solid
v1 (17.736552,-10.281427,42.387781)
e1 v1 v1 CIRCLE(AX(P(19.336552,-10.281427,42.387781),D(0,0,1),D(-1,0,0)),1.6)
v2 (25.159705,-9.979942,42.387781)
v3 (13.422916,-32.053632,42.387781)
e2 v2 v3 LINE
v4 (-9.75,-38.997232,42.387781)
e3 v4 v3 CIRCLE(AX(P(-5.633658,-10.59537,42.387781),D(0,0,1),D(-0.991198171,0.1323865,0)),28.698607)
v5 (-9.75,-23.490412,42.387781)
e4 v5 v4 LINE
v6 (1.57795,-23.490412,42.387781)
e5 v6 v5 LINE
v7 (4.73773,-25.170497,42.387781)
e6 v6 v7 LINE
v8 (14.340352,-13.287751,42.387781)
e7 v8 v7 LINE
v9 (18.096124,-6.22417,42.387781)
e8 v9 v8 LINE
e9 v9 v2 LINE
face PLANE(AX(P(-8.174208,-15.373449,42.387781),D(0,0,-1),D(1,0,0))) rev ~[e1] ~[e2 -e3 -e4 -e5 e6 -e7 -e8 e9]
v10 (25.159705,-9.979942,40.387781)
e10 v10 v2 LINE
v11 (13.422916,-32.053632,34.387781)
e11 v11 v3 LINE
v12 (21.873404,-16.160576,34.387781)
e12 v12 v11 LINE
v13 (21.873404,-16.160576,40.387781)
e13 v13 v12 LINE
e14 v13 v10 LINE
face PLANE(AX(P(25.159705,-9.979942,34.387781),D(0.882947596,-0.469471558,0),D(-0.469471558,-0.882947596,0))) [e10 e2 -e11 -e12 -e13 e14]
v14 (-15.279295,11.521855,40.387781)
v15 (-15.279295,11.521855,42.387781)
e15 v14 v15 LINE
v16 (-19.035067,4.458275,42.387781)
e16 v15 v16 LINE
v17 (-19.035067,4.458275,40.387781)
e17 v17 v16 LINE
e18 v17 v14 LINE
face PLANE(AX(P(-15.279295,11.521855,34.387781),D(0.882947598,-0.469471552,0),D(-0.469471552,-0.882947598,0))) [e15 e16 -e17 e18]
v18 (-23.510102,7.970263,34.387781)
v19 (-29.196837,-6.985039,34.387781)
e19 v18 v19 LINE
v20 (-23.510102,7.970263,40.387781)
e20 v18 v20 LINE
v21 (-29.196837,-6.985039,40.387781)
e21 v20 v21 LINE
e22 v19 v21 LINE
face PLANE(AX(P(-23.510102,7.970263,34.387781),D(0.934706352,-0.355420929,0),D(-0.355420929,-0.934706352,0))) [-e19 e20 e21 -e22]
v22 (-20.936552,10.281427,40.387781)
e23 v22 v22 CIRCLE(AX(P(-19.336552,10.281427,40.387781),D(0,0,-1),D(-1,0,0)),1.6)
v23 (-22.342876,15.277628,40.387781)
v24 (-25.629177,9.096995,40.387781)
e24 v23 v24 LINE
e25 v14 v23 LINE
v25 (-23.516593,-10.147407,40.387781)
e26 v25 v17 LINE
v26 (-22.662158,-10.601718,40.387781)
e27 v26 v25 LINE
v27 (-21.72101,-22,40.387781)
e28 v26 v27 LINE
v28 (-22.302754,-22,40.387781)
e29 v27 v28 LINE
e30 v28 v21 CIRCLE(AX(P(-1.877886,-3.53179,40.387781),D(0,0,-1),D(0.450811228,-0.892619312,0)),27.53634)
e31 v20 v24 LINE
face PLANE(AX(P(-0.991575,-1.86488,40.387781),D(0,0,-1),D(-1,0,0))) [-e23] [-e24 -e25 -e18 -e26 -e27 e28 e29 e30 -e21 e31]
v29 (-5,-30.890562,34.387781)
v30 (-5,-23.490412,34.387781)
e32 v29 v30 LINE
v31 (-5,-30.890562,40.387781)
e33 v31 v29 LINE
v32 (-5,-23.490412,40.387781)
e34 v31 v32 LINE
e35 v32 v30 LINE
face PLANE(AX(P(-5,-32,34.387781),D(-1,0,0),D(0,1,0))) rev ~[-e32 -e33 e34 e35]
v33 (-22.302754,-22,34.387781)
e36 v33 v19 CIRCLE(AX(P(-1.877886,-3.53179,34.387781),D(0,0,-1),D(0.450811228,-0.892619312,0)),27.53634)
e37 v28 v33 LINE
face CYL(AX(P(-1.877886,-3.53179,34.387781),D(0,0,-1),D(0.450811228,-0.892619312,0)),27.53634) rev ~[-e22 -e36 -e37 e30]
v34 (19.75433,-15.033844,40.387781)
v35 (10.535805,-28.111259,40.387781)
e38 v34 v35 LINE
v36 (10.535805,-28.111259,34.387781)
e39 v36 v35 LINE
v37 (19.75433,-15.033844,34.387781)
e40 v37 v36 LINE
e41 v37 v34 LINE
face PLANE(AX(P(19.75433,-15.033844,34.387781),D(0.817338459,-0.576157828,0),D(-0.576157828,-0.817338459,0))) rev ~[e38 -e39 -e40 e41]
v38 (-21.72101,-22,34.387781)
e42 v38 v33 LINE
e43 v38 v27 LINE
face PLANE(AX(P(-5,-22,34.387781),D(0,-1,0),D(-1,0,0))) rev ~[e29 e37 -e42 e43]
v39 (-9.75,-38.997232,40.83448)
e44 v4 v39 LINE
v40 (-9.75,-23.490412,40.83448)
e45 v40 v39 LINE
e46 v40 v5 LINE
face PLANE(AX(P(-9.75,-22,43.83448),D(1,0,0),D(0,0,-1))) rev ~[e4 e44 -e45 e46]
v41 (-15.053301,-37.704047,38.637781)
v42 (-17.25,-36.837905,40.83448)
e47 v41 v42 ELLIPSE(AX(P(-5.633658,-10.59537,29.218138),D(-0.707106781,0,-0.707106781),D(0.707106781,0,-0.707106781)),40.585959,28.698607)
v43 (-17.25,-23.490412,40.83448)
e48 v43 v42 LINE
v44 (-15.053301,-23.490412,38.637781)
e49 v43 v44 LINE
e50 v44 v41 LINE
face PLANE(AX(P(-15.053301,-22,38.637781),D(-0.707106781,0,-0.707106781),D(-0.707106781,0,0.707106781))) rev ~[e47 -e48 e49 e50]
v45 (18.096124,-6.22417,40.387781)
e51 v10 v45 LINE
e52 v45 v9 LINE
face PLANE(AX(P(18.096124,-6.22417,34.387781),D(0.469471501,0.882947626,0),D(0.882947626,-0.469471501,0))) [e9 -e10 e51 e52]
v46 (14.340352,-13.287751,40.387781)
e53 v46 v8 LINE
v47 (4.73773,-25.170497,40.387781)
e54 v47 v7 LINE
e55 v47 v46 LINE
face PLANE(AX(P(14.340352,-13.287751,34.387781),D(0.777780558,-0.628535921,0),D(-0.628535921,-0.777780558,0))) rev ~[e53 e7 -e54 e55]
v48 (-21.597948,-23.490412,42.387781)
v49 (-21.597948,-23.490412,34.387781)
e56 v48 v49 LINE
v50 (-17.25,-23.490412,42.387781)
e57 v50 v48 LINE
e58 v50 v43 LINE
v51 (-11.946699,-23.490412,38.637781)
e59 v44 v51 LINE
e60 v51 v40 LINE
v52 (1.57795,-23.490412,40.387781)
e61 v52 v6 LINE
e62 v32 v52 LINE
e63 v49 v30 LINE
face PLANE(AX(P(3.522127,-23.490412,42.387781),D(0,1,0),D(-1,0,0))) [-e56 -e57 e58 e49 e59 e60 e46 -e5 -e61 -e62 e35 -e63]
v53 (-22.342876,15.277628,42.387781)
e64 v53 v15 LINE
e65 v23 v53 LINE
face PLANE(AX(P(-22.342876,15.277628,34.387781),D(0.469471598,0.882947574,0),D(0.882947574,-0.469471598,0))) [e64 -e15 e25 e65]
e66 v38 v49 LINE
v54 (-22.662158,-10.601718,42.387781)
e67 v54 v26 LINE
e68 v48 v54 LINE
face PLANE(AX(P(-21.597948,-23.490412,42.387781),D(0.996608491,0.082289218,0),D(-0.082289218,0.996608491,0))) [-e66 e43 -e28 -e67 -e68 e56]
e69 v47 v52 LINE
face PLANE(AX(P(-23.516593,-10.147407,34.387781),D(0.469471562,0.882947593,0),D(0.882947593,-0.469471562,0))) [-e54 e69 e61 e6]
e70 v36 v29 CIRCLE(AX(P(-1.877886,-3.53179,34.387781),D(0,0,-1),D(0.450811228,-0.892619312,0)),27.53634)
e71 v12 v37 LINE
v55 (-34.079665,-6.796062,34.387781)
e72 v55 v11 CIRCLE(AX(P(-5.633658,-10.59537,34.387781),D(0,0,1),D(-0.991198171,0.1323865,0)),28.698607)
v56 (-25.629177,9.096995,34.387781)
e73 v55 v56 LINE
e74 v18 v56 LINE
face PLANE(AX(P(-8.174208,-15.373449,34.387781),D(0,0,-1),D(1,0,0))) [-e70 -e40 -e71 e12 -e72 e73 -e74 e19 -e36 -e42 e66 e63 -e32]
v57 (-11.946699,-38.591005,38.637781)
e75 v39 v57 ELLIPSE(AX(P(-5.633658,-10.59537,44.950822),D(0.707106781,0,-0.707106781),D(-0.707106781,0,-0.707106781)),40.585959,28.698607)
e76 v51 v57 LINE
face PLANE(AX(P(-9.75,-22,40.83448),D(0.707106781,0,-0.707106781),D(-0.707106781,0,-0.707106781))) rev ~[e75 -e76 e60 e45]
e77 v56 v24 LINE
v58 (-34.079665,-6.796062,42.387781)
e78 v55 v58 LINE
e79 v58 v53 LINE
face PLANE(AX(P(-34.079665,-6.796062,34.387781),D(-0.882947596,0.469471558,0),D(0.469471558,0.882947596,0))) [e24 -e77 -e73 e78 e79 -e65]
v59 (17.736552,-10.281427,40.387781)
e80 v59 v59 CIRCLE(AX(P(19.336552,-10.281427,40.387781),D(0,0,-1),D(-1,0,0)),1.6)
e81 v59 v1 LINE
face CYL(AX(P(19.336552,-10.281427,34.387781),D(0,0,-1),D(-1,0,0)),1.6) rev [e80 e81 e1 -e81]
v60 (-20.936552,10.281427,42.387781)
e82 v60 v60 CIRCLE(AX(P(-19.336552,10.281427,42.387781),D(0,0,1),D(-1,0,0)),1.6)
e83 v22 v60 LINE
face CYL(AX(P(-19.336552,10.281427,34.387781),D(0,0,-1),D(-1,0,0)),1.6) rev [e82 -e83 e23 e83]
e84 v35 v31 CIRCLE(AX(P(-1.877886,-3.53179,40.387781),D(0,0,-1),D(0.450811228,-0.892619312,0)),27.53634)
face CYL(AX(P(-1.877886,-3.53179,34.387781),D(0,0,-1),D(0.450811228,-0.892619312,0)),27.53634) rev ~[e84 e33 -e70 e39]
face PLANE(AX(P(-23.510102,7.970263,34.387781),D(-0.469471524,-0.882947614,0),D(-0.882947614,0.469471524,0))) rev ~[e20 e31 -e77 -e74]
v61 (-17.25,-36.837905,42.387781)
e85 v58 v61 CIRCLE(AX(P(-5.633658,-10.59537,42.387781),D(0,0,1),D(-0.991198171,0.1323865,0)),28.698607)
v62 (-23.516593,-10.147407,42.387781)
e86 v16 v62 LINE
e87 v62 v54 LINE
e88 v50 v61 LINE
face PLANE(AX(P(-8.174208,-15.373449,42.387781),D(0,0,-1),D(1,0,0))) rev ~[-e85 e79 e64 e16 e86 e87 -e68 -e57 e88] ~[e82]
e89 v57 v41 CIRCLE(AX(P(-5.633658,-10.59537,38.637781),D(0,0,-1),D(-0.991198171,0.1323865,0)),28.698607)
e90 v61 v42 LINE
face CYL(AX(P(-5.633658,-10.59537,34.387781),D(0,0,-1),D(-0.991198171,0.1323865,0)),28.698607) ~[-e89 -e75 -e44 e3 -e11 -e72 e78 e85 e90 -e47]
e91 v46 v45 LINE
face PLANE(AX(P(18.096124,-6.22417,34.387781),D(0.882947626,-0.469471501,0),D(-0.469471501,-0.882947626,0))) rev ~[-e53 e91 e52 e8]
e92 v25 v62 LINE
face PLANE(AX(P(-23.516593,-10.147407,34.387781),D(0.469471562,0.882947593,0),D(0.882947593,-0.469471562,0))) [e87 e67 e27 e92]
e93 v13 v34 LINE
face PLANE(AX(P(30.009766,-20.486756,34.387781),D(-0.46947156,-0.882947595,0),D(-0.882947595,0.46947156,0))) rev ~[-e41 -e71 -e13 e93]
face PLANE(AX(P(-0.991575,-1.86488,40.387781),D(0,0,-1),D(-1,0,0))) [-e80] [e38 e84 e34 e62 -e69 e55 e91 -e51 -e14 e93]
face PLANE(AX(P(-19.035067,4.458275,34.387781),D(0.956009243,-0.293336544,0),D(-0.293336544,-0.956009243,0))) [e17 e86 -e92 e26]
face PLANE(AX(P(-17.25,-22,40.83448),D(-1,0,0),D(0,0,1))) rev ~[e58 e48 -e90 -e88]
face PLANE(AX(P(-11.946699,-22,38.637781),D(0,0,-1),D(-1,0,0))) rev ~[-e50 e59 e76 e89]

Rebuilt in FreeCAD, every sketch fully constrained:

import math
import FreeCAD as App
import Part
import Sketcher
from FreeCAD import Vector
Q = App.Units.Quantity


def add_polygon(sketch, points):
    """Adds a closed chain of lines whose ends are joined by coincident constraints."""
    first, n = sketch.GeometryCount, len(points)
    for a, b in zip(points, points[1:] + points[:1]):
        sketch.addGeometry(Part.LineSegment(App.Vector(*a, 0), App.Vector(*b, 0)), False)
    for i in range(n):
        sketch.addConstraint(Sketcher.Constraint("Coincident", first + i, 2, first + (i + 1) % n, 1))

doc = App.newDocument("Part")
params = doc.addObject("Spreadsheet::Sheet", "Params")
for row, (alias, value) in enumerate([
    ("sketch1_diameter", "3.2 mm"),
    ("sketch1_length", "25 mm"),
    ("sketch1_length2", "8 mm"),
    ("sketch1_length3", "32 mm"),
    ("pad1_length", "8 mm"),
    ("sketch2_length", "16 mm"),
    ("sketch2_length2", "20 mm"),
    ("sketch2_length3", "72.229999 mm"),
    ("pocket1_length", "6 mm"),
    ("sketch3_width", "18 mm"),
    ("sketch3_height", "10 mm"),
    ("pad2_length", "8 mm"),
    ("sketch4_height", "3 mm"),
    ("sketch4_width", "7.5 mm"),
    ("pocket2_length", "34 mm"),
    ("pocket2_length2", "12 mm"),
], start=1):
    params.set(f"A{row}", alias)
    params.set(f"B{row}", "=" + value)
    params.setAlias(f"B{row}", alias)

body = doc.addObject("PartDesign::Body", "Body")

# Sketch on XY plane
sketch1 = doc.addObject("Sketcher::SketchObject", "Sketch")
body.addObject(sketch1)
sketch1.AttachmentSupport = (doc.XY_Plane, [""])
sketch1.MapMode = "FlatFace"
sketch1.AttachmentOffset = App.Placement(Vector(0, 0, 34.387781), App.Rotation())
sketch1.addGeometry(Part.LineSegment(Vector(13.4, -32.1, 0), Vector(25.2, -10, 0)), False)
sketch1.addGeometry(Part.LineSegment(Vector(25.2, -10, 0), Vector(18.1, -6.2, 0)), False)
sketch1.addGeometry(Part.LineSegment(Vector(18.1, -6.2, 0), Vector(14.3, -13.3, 0)), False)
sketch1.addGeometry(Part.LineSegment(Vector(14.3, -13.3, 0), Vector(4.7, -25.2, 0)), False)
sketch1.addGeometry(Part.LineSegment(Vector(4.7, -25.2, 0), Vector(-23.5, -10.1, 0)), False)
sketch1.addGeometry(Part.LineSegment(Vector(-23.5, -10.1, 0), Vector(-19, 4.5, 0)), False)
sketch1.addGeometry(Part.LineSegment(Vector(-19, 4.5, 0), Vector(-15.3, 11.5, 0)), False)
sketch1.addGeometry(Part.LineSegment(Vector(-15.3, 11.5, 0), Vector(-22.3, 15.3, 0)), False)
sketch1.addGeometry(Part.LineSegment(Vector(-22.3, 15.3, 0), Vector(-34.1, -6.8, 0)), False)
sketch1.addGeometry(Part.ArcOfCircle(Part.Circle(Vector(-5.6, -10.6, 0), Vector(0, 0, 1), 28.7), math.radians(172), math.radians(312)), False)
sketch1.addGeometry(Part.Circle(Vector(-19.3, 10.3, 0), Vector(0, 0, 1), 1.6), False)
sketch1.addGeometry(Part.Circle(Vector(19.3, -10.3, 0), Vector(0, 0, 1), 1.6), False)
sketch1.addConstraint(Sketcher.Constraint("Coincident", 0, 2, 1, 1))
sketch1.addConstraint(Sketcher.Constraint("Coincident", 1, 2, 2, 1))
sketch1.addConstraint(Sketcher.Constraint("Coincident", 2, 2, 3, 1))
sketch1.addConstraint(Sketcher.Constraint("Coincident", 3, 2, 4, 1))
sketch1.addConstraint(Sketcher.Constraint("Coincident", 4, 2, 5, 1))
sketch1.addConstraint(Sketcher.Constraint("Coincident", 5, 2, 6, 1))
sketch1.addConstraint(Sketcher.Constraint("Coincident", 6, 2, 7, 1))
sketch1.addConstraint(Sketcher.Constraint("Coincident", 7, 2, 8, 1))
sketch1.addConstraint(Sketcher.Constraint("Coincident", 8, 2, 9, 1))
sketch1.addConstraint(Sketcher.Constraint("Coincident", 9, 2, 0, 1))
sketch1.addConstraint(Sketcher.Constraint("Equal", 10, 11))
sketch1.addConstraint(Sketcher.Constraint("Symmetric", 10, 3, 11, 3, -1, 1))
sketch1.addConstraint(Sketcher.Constraint("Perpendicular", 0, 1))
sketch1.addConstraint(Sketcher.Constraint("Perpendicular", 1, 2))
sketch1.addConstraint(Sketcher.Constraint("Perpendicular", 2, 4))
sketch1.addConstraint(Sketcher.Constraint("Perpendicular", 4, 6))
sketch1.addConstraint(Sketcher.Constraint("Perpendicular", 6, 7))
sketch1.addConstraint(Sketcher.Constraint("Perpendicular", 7, 8))
sketch1.addConstraint(Sketcher.Constraint("Equal", 1, 2))
sketch1.addConstraint(Sketcher.Constraint("Equal", 3, 5))
sketch1.addConstraint(Sketcher.Constraint("Equal", 2, 6))
sketch1.addConstraint(Sketcher.Constraint("Equal", 6, 7))
sketch1.addConstraint(Sketcher.Constraint("Equal", 0, 8))
sketch1.addConstraint(Sketcher.Constraint("Diameter", 10, Q("3.2 mm")))
sketch1.addConstraint(Sketcher.Constraint("Angle", 0, Q("62 deg")))
sketch1.addConstraint(Sketcher.Constraint("Distance", 0, Q("25 mm")))
sketch1.addConstraint(Sketcher.Constraint("Distance", 1, Q("8 mm")))
sketch1.addConstraint(Sketcher.Constraint("Distance", 4, Q("32 mm")))
sketch1.addConstraint(Sketcher.Constraint("Radius", 9, Q("28.698607 mm")))
sketch1.addConstraint(Sketcher.Constraint("DistanceY", 9, 3, 7, 2, Q("25.872998 mm")))
sketch1.addConstraint(Sketcher.Constraint("DistanceY", 9, 3, 1, 2, Q("4.3712 mm")))
sketch1.addConstraint(Sketcher.Constraint("DistanceX", 2, 2, 11, 3, Q("4.9962 mm")))
sketch1.addConstraint(Sketcher.Constraint("DistanceX", 4, 2, 6, 2, Q("8.237298 mm")))
sketch1.addConstraint(Sketcher.Constraint("DistanceY", 10, 3, 7, 2, Q("4.996201 mm")))
sketch1.addConstraint(Sketcher.Constraint("DistanceX", 9, 3, -1, 1, Q("5.633658 mm")))
sketch1.addConstraint(Sketcher.Constraint("DistanceY", 9, 3, -1, 1, Q("10.59537 mm")))
sketch1.setExpression("Constraints[23]", "Params.sketch1_diameter")
sketch1.setExpression("Constraints[25]", "Params.sketch1_length")
sketch1.setExpression("Constraints[26]", "Params.sketch1_length2")
sketch1.setExpression("Constraints[27]", "Params.sketch1_length3")
pad1 = doc.addObject("PartDesign::Pad", "Pad")
body.addObject(pad1)
pad1.Profile = sketch1
pad1.setExpression("Length", "Params.pad1_length")

# Sketch on XY plane
sketch2 = doc.addObject("Sketcher::SketchObject", "Sketch001")
body.addObject(sketch2)
sketch2.AttachmentSupport = (doc.XY_Plane, [""])
sketch2.MapMode = "FlatFace"
sketch2.AttachmentOffset = App.Placement(Vector(0, 0, 34.387781), App.Rotation())
sketch2.addGeometry(Part.ArcOfCircle(Part.Circle(Vector(-2, -4, 0), Vector(0, 0, 1), 28), math.radians(-173), math.radians(-63)), False)
sketch2.addGeometry(Part.LineSegment(Vector(-29, -7, 0), Vector(-24, 8, 0)), False)
sketch2.addGeometry(Part.LineSegment(Vector(-24, 8, 0), Vector(-34, 13, 0)), False)
sketch2.addGeometry(Part.LineSegment(Vector(-34, 13, 0), Vector(-24, 31, 0)), False)
sketch2.addGeometry(Part.LineSegment(Vector(-24, 31, 0), Vector(39, -3, 0)), False)
sketch2.addGeometry(Part.LineSegment(Vector(39, -3, 0), Vector(30, -20, 0)), False)
sketch2.addGeometry(Part.LineSegment(Vector(30, -20, 0), Vector(20, -15, 0)), False)
sketch2.addGeometry(Part.LineSegment(Vector(20, -15, 0), Vector(11, -28, 0)), False)
sketch2.addConstraint(Sketcher.Constraint("Coincident", 0, 1, 1, 1))
sketch2.addConstraint(Sketcher.Constraint("Coincident", 1, 2, 2, 1))
sketch2.addConstraint(Sketcher.Constraint("Coincident", 2, 2, 3, 1))
sketch2.addConstraint(Sketcher.Constraint("Coincident", 3, 2, 4, 1))
sketch2.addConstraint(Sketcher.Constraint("Coincident", 4, 2, 5, 1))
sketch2.addConstraint(Sketcher.Constraint("Coincident", 5, 2, 6, 1))
sketch2.addConstraint(Sketcher.Constraint("Coincident", 6, 2, 7, 1))
sketch2.addConstraint(Sketcher.Constraint("Coincident", 7, 2, 0, 2))
sketch2.addConstraint(Sketcher.Constraint("Perpendicular", 2, 3))
sketch2.addConstraint(Sketcher.Constraint("Perpendicular", 3, 4))
sketch2.addConstraint(Sketcher.Constraint("Perpendicular", 4, 5))
sketch2.addConstraint(Sketcher.Constraint("Perpendicular", 5, 6))
sketch2.addConstraint(Sketcher.Constraint("Equal", 3, 5))
sketch2.addConstraint(Sketcher.Constraint("Equal", 2, 6))
sketch2.addConstraint(Sketcher.Constraint("Equal", 1, 7))
sketch2.addConstraint(Sketcher.Constraint("Angle", 2, Q("152.000003 deg")))
sketch2.addConstraint(Sketcher.Constraint("Distance", 1, Q("16 mm")))
sketch2.addConstraint(Sketcher.Constraint("Distance", 3, Q("20 mm")))
sketch2.addConstraint(Sketcher.Constraint("Distance", 4, Q("72.229999 mm")))
sketch2.addConstraint(Sketcher.Constraint("Radius", 0, Q("27.53634 mm")))
sketch2.addConstraint(Sketcher.Constraint("Distance", 2, Q("11.615001 mm")))
sketch2.addConstraint(Sketcher.Constraint("DistanceX", 1, 2, -1, 1, Q("23.510102 mm")))
sketch2.addConstraint(Sketcher.Constraint("DistanceY", 0, 1, 1, 2, Q("14.955302 mm")))
sketch2.addConstraint(Sketcher.Constraint("DistanceY", 0, 3, -1, 1, Q("3.53179 mm")))
sketch2.addConstraint(Sketcher.Constraint("DistanceY", 0, 1, -1, 1, Q("6.985039 mm")))
sketch2.setExpression("Constraints[16]", "Params.sketch2_length")
sketch2.setExpression("Constraints[17]", "Params.sketch2_length2")
sketch2.setExpression("Constraints[18]", "Params.sketch2_length3")
pocket1 = doc.addObject("PartDesign::Pocket", "Pocket")
body.addObject(pocket1)
pocket1.Profile = sketch2
pocket1.setExpression("Length", "Params.pocket1_length")
pocket1.Reversed = True

# Sketch on XY plane
sketch3 = doc.addObject("Sketcher::SketchObject", "Sketch002")
body.addObject(sketch3)
sketch3.AttachmentSupport = (doc.XY_Plane, [""])
sketch3.MapMode = "FlatFace"
sketch3.AttachmentOffset = App.Placement(Vector(0, 0, 34.387781), App.Rotation())
add_polygon(sketch3, [(-5, -22), (-5, -32), (-23, -32), (-23, -22)])  # lines 0-3
sketch3.addConstraint(Sketcher.Constraint("Vertical", 0))
sketch3.addConstraint(Sketcher.Constraint("Horizontal", 1))
sketch3.addConstraint(Sketcher.Constraint("Vertical", 2))
sketch3.addConstraint(Sketcher.Constraint("Horizontal", 3))
sketch3.addConstraint(Sketcher.Constraint("DistanceX", 1, 2, 1, 1, Q("18 mm")))
sketch3.addConstraint(Sketcher.Constraint("DistanceY", 0, 2, 0, 1, Q("10 mm")))
sketch3.addConstraint(Sketcher.Constraint("DistanceX", 0, 2, -1, 1, Q("5 mm")))
sketch3.addConstraint(Sketcher.Constraint("DistanceY", 0, 2, -1, 1, Q("32 mm")))
sketch3.setExpression("Constraints[8]", "Params.sketch3_width")
sketch3.setExpression("Constraints[9]", "Params.sketch3_height")
pad2 = doc.addObject("PartDesign::Pad", "Pad001")
body.addObject(pad2)
pad2.Profile = sketch3
pad2.setExpression("Length", "Params.pad2_length")

# Sketch on XZ plane
sketch4 = doc.addObject("Sketcher::SketchObject", "Sketch003")
body.addObject(sketch4)
sketch4.AttachmentSupport = (doc.XZ_Plane, [""])
sketch4.MapMode = "FlatFace"
sketch4.AttachmentOffset = App.Placement(Vector(0, 0, 22), App.Rotation())
add_polygon(sketch4, [(-11.9, 38.6), (-15.1, 38.6), (-17.2, 40.8), (-17.2, 43.8), (-9.8, 43.8), (-9.8, 40.8)])  # lines 0-5
sketch4.addConstraint(Sketcher.Constraint("Horizontal", 0))
sketch4.addConstraint(Sketcher.Constraint("Vertical", 2))
sketch4.addConstraint(Sketcher.Constraint("Horizontal", 3))
sketch4.addConstraint(Sketcher.Constraint("Vertical", 4))
sketch4.addConstraint(Sketcher.Constraint("Perpendicular", 1, 5))
sketch4.addConstraint(Sketcher.Constraint("Horizontal", 1, 2, 4, 2))
sketch4.addConstraint(Sketcher.Constraint("Equal", 1, 5))
sketch4.addConstraint(Sketcher.Constraint("DistanceY", 2, 1, 2, 2, Q("3 mm")))
sketch4.addConstraint(Sketcher.Constraint("DistanceX", 3, 1, 3, 2, Q("7.5 mm")))
sketch4.addConstraint(Sketcher.Constraint("DistanceX", 1, 2, -1, 1, Q("17.25 mm")))
sketch4.addConstraint(Sketcher.Constraint("DistanceX", 0, 2, 0, 1, Q("3.106602 mm")))
sketch4.addConstraint(Sketcher.Constraint("DistanceY", -1, 1, 0, 2, Q("38.637781 mm")))
sketch4.setExpression("Constraints[13]", "Params.sketch4_height")
sketch4.setExpression("Constraints[14]", "Params.sketch4_width")
pocket2 = doc.addObject("PartDesign::Pocket", "Pocket001")
body.addObject(pocket2)
pocket2.Profile = sketch4
pocket2.Type = "TwoLengths"
pocket2.setExpression("Length", "Params.pocket2_length")
pocket2.setExpression("Length2", "Params.pocket2_length2")
pocket2.Reversed = True

# Sketch on XY plane
sketch5 = doc.addObject("Sketcher::SketchObject", "Sketch004")
body.addObject(sketch5)
sketch5.AttachmentSupport = (doc.XY_Plane, [""])
sketch5.MapMode = "FlatFace"
sketch5.AttachmentOffset = App.Placement(Vector(0, 0, 42.387781), App.Rotation())
add_polygon(sketch5, [(-22, -23), (4, -23), (-23, -10)])  # lines 0-2
sketch5.addConstraint(Sketcher.Constraint("Horizontal", 0))
sketch5.addConstraint(Sketcher.Constraint("DistanceX", 0, 1, 0, 2, Q("25.120075 mm")))
sketch5.addConstraint(Sketcher.Constraint("DistanceY", 0, 2, -1, 1, Q("23.490412 mm")))
sketch5.addConstraint(Sketcher.Constraint("DistanceX", 1, 2, 2, 2, Q("1.153479 mm")))
sketch5.addConstraint(Sketcher.Constraint("Distance", 1, Q("29.756612 mm")))
sketch5.addConstraint(Sketcher.Constraint("DistanceX", -1, 1, 0, 2, Q("3.522127 mm")))
pocket3 = doc.addObject("PartDesign::Pocket", "Pocket002")
body.addObject(pocket3)
pocket3.Profile = sketch5
pocket3.Type = "ThroughAll"

doc.recompute()
